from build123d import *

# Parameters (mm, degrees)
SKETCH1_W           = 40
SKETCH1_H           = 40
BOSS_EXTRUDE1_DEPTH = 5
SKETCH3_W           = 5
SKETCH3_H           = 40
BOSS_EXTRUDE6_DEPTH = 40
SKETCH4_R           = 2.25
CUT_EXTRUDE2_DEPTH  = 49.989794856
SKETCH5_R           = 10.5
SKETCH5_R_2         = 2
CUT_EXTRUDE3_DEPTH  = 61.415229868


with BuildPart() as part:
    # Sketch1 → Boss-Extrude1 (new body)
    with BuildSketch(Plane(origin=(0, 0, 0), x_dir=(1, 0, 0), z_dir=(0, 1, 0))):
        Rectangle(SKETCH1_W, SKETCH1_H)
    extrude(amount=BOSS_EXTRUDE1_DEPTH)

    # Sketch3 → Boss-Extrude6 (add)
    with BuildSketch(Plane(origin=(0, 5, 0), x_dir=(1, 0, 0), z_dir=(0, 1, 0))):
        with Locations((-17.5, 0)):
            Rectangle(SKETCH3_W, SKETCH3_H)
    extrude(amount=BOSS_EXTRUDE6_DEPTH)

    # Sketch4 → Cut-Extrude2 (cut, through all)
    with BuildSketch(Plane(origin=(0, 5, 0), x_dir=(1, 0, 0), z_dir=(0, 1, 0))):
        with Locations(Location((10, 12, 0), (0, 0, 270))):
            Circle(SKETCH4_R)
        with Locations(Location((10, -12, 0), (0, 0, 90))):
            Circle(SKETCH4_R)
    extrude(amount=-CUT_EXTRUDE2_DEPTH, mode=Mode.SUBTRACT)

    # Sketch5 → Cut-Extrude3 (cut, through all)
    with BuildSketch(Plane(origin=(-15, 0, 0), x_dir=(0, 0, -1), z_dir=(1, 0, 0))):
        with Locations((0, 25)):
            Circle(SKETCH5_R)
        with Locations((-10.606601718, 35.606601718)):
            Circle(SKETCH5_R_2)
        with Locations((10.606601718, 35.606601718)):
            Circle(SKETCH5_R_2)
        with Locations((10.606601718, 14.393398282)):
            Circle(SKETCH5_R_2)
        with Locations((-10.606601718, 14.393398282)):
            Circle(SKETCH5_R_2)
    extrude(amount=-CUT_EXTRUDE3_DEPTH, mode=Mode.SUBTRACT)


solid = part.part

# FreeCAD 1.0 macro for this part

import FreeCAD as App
import Part
import Sketcher
from FreeCAD import Vector
Q = App.Units.Quantity


def add_polygon(sketch, points):
    """Adds a closed chain of lines whose ends are joined by coincident constraints."""
    first, n = sketch.GeometryCount, len(points)
    for a, b in zip(points, points[1:] + points[:1]):
        sketch.addGeometry(Part.LineSegment(App.Vector(*a, 0), App.Vector(*b, 0)), False)
    for i in range(n):
        sketch.addConstraint(Sketcher.Constraint("Coincident", first + i, 2, first + (i + 1) % n, 1))

doc = App.newDocument("Part")
body = doc.addObject("PartDesign::Body", "Body")

# Sketch on XZ plane
sketch1 = body.newObject("Sketcher::SketchObject", "Sketch")
sketch1.AttachmentSupport = (doc.getObject("XZ_Plane"), [""])
sketch1.MapMode = "FlatFace"
add_polygon(sketch1, [(-20, -20), (-20, 20), (20, 20), (20, -20)])  # lines 0-3
sketch1.addConstraint([
    Sketcher.Constraint("Vertical", 0),
    Sketcher.Constraint("Horizontal", 1),
    Sketcher.Constraint("Vertical", 2),
    Sketcher.Constraint("Horizontal", 3),
    Sketcher.Constraint("Symmetric", 0, 2, 2, 2, -1, 1),
    Sketcher.Constraint("Equal", 3, 0),
    Sketcher.Constraint("DistanceX", 1, 1, 1, 2, Q("40 mm")),
])
pad1 = body.newObject("PartDesign::Pad", "Pad")
pad1.Profile = sketch1
pad1.Length = 5
pad1.Reversed = True

# Sketch on XZ plane
sketch2 = body.newObject("Sketcher::SketchObject", "Sketch001")
sketch2.AttachmentSupport = (doc.getObject("XZ_Plane"), [""])
sketch2.MapMode = "FlatFace"
sketch2.AttachmentOffset = App.Placement(Vector(0, 0, -5), App.Rotation())
add_polygon(sketch2, [(-20, -20), (-20, 20), (-15, 20), (-15, -20)])  # lines 0-3
sketch2.addConstraint([
    Sketcher.Constraint("Vertical", 0),
    Sketcher.Constraint("Horizontal", 1),
    Sketcher.Constraint("Vertical", 2),
    Sketcher.Constraint("Horizontal", 3),
    Sketcher.Constraint("DistanceX", 1, 1, 1, 2, Q("5 mm")),
    Sketcher.Constraint("DistanceY", 0, 1, 0, 2, Q("40 mm")),
    Sketcher.Constraint("DistanceX", 0, 2, -1, 1, Q("20 mm")),
    Sketcher.Constraint("DistanceY", -1, 1, 0, 2, Q("20 mm")),
])
pad2 = body.newObject("PartDesign::Pad", "Pad001")
pad2.Profile = sketch2
pad2.Length = 40
pad2.Reversed = True

# Sketch on XZ plane
sketch3 = body.newObject("Sketcher::SketchObject", "Sketch002")
sketch3.AttachmentSupport = (doc.getObject("XZ_Plane"), [""])
sketch3.MapMode = "FlatFace"
sketch3.AttachmentOffset = App.Placement(Vector(0, 0, -5), App.Rotation())
sketch3.addGeometry([
    Part.Circle(Vector(10, -12, 0), Vector(0, 0, 1), 2.2),
    Part.Circle(Vector(10, 12, 0), Vector(0, 0, 1), 2.2),
], False)
sketch3.addConstraint([
    Sketcher.Constraint("Equal", 0, 1),
    Sketcher.Constraint("Symmetric", 0, 3, 1, 3, -1),
    Sketcher.Constraint("Diameter", 0, Q("4.5 mm")),
    Sketcher.Constraint("DistanceX", -1, 1, 0, 3, Q("10 mm")),
    Sketcher.Constraint("DistanceY", 0, 3, -1, 1, Q("12 mm")),
])
pocket1 = body.newObject("PartDesign::Pocket", "Pocket")
pocket1.Profile = sketch3
pocket1.Type = "ThroughAll"
pocket1.Reversed = True

# Sketch on YZ plane
sketch4 = body.newObject("Sketcher::SketchObject", "Sketch003")
sketch4.AttachmentSupport = (doc.getObject("YZ_Plane"), [""])
sketch4.MapMode = "FlatFace"
sketch4.AttachmentOffset = App.Placement(Vector(0, 0, -15), App.Rotation())
sketch4.addGeometry([
    Part.Circle(Vector(25, 0, 0), Vector(0, 0, 1), 10.5),  # 0
    Part.Circle(Vector(35.6, 10.6, 0), Vector(0, 0, 1), 2),  # 1
    Part.Circle(Vector(35.6, -10.6, 0), Vector(0, 0, 1), 2),  # 2
    Part.Circle(Vector(14.4, -10.6, 0), Vector(0, 0, 1), 2),  # 3
    Part.Circle(Vector(14.4, 10.6, 0), Vector(0, 0, 1), 2),  # 4
], False)
sketch4.addConstraint([
    Sketcher.Constraint("Equal", 1, 2),
    Sketcher.Constraint("Equal", 2, 3),
    Sketcher.Constraint("Equal", 3, 4),
    Sketcher.Constraint("Symmetric", 1, 3, 2, 3, -1),
    Sketcher.Constraint("Symmetric", 3, 3, 4, 3, -1),
    Sketcher.Constraint("PointOnObject", 0, 3, -1),
    Sketcher.Constraint("Horizontal", 2, 3, 3, 3),
    Sketcher.Constraint("Diameter", 0, Q("21 mm")),
    Sketcher.Constraint("Diameter", 1, Q("4 mm")),
    Sketcher.Constraint("DistanceX", -1, 1, 0, 3, Q("25 mm")),
    Sketcher.Constraint("DistanceX", -1, 1, 1, 3, Q("35.606602 mm")),
    Sketcher.Constraint("DistanceY", -1, 1, 1, 3, Q("10.606602 mm")),
    Sketcher.Constraint("DistanceX", -1, 1, 3, 3, Q("14.393398 mm")),
])
pocket2 = body.newObject("PartDesign::Pocket", "Pocket001")
pocket2.Profile = sketch4
pocket2.Type = "ThroughAll"

doc.recompute()
